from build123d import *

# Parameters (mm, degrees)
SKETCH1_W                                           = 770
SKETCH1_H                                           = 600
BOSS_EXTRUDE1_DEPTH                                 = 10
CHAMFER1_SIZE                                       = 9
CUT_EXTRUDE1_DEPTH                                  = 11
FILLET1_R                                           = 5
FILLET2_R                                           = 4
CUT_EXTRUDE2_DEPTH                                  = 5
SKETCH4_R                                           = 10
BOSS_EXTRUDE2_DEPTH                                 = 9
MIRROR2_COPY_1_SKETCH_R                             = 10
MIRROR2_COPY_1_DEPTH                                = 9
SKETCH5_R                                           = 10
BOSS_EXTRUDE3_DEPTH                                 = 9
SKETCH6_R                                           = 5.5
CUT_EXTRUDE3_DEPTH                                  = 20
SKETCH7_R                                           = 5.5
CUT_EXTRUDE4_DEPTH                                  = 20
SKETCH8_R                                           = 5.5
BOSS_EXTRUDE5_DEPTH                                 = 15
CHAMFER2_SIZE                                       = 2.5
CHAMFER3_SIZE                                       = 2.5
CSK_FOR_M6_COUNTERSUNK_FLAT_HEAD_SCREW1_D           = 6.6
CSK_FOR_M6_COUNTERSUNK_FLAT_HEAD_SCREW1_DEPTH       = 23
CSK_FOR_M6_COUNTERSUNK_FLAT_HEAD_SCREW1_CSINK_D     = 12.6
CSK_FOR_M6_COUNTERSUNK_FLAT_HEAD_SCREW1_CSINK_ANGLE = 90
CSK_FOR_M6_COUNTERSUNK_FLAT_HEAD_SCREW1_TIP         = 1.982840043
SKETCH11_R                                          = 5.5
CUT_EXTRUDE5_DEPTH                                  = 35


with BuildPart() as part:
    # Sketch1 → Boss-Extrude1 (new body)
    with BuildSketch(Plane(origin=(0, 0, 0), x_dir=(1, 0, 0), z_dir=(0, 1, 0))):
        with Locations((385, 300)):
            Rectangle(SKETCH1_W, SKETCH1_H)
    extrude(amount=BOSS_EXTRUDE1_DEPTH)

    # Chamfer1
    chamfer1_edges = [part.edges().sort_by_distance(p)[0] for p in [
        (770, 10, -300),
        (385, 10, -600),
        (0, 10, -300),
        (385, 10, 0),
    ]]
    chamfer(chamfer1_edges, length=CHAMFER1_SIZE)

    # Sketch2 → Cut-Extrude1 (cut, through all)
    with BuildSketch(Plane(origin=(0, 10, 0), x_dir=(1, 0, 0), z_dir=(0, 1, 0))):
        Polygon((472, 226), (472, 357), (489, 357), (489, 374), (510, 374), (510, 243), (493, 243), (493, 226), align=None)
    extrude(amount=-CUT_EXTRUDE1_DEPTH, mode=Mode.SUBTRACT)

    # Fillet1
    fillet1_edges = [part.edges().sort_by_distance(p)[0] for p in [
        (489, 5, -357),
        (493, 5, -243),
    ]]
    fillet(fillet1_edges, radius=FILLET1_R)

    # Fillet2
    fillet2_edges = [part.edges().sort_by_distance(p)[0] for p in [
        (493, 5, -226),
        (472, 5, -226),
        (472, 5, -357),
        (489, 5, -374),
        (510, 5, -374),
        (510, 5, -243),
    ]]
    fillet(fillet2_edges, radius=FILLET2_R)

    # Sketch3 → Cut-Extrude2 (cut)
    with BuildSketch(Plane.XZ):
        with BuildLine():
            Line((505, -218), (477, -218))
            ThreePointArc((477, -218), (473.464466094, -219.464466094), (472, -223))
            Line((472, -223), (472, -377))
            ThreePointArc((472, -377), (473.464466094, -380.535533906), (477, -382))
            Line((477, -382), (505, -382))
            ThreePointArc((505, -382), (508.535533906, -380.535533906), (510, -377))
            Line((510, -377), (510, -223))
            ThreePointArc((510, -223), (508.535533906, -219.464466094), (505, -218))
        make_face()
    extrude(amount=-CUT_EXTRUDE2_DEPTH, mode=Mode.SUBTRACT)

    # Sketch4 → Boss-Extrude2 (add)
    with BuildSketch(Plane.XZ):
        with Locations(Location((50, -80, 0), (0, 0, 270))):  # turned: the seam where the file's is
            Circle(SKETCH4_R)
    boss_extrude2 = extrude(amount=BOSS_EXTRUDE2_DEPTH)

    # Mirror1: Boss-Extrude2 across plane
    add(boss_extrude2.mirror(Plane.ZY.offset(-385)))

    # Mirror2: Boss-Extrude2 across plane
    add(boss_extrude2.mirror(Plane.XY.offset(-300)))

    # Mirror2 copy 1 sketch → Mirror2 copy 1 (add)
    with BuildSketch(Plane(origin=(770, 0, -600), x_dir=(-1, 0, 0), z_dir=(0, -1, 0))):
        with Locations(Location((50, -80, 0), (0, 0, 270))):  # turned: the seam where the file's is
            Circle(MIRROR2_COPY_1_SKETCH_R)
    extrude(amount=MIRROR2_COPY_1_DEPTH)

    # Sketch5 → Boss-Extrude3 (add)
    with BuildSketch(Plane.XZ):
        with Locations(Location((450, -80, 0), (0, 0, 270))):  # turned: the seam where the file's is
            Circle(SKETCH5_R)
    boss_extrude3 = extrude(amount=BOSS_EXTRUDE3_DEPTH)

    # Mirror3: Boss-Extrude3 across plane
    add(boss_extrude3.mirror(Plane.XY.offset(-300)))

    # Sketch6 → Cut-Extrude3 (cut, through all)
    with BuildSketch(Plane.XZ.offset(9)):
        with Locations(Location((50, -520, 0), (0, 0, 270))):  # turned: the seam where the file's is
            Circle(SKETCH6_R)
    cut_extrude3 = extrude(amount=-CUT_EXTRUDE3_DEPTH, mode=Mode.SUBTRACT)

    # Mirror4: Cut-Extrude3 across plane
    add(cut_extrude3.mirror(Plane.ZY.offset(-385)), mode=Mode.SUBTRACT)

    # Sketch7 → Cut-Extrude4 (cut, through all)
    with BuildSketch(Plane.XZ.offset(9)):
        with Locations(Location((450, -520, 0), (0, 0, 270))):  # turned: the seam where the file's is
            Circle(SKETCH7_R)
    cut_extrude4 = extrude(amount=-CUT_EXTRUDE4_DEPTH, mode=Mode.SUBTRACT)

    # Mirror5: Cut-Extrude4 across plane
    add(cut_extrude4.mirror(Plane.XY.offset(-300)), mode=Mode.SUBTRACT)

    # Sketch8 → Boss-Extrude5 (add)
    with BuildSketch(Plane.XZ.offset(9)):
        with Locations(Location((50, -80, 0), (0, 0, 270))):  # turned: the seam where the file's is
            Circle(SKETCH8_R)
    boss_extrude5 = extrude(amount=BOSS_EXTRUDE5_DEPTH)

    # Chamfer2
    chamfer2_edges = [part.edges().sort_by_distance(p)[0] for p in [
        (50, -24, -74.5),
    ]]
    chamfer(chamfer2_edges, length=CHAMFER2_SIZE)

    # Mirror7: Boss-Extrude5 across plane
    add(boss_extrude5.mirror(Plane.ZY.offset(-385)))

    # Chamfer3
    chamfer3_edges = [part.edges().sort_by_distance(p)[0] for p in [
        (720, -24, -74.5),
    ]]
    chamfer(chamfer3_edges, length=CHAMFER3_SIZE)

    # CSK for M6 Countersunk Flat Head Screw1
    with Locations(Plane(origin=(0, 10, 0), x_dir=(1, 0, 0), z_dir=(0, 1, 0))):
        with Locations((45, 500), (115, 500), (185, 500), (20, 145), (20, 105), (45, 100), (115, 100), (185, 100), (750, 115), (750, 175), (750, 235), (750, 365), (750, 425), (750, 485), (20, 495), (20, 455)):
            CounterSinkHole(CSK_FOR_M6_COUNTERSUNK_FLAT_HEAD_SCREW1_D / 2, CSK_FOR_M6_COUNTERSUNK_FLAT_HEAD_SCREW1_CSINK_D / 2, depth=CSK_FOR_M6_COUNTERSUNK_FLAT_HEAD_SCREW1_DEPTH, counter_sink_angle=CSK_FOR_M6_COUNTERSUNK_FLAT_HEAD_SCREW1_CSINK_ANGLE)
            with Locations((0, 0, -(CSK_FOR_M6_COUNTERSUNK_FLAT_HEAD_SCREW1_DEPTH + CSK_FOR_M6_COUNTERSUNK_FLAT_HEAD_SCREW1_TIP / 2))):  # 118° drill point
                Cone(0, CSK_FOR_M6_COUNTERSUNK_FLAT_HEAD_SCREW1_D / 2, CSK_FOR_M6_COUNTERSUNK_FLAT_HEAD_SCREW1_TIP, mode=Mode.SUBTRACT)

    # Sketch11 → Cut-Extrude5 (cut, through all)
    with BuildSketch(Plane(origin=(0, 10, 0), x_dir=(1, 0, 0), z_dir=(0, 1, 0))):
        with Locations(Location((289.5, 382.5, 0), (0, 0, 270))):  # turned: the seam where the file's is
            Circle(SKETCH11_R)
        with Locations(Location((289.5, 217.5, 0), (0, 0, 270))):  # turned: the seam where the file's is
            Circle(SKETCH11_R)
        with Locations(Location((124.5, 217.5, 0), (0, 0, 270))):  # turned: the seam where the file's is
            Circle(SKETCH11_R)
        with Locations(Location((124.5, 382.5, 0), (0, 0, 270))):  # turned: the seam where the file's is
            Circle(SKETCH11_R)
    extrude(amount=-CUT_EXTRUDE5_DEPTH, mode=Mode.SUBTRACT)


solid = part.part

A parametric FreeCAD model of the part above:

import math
import FreeCAD as App
import Part
import Sketcher

V = App.Vector
Q = App.Units.Quantity


def edges_at(feature, points):
    """Names of the edges that pass closest to the given points."""
    edges = feature.Shape.Edges
    near = lambda p: min(range(len(edges)), key=lambda i: edges[i].distToShape(Part.Vertex(*p))[0])
    return sorted({f"Edge{near(p) + 1}" for p in points})


def add_polygon(sketch, points):
    """Adds a closed chain of lines whose ends are joined by coincident constraints."""
    first, n = sketch.GeometryCount, len(points)
    for a, b in zip(points, points[1:] + points[:1]):
        sketch.addGeometry(Part.LineSegment(App.Vector(*a, 0), App.Vector(*b, 0)), False)
    for i in range(n):
        sketch.addConstraint(Sketcher.Constraint("Coincident", first + i, 2, first + (i + 1) % n, 1))

doc = App.newDocument("Part")
params = doc.addObject("Spreadsheet::Sheet", "Params")
for row, (alias, value) in enumerate([
    ("sketch1_width", "770 mm"),
    ("sketch1_height", "600 mm"),
    ("pad1_length", "10 mm"),
    ("chamfer_size", "9 mm"),
    ("sketch2_width", "21 mm"),
    ("sketch2_width2", "17 mm"),
    ("sketch2_height", "131 mm"),
    ("fillet_radius", "5 mm"),
    ("fillet2_radius", "4 mm"),
    ("sketch3_radius", "5 mm"),
    ("sketch3_width", "28 mm"),
    ("sketch3_height", "154 mm"),
    ("pocket2_length", "5 mm"),
    ("sketch4_diameter", "20 mm"),
    ("pad2_length", "9 mm"),
    ("sketch5_diameter", "20 mm"),
    ("pad3_length", "9 mm"),
    ("sketch6_diameter", "20 mm"),
    ("pad4_length", "9 mm"),
    ("sketch7_diameter", "11 mm"),
    ("sketch8_diameter", "11 mm"),
    ("sketch9_diameter", "11 mm"),
    ("pad5_length", "15 mm"),
    ("chamfer2_size", "2.5 mm"),
    ("chamfer3_size", "2.5 mm"),
    ("sketch10_diameter", "6.6 mm"),
    ("hole_diameter", "6.6 mm"),
    ("hole_depth", "23 mm"),
    ("hole_csink_diameter", "12.6 mm"),
    ("sketch11_diameter", "11 mm"),
], start=1):
    params.set(f"A{row}", alias)
    params.set(f"B{row}", "=" + value)
    params.setAlias(f"B{row}", alias)

body = doc.addObject("PartDesign::Body", "Body")

sketch1 = body.newObject("Sketcher::SketchObject", "Sketch")
sketch1.AttachmentSupport = (doc.getObject("XZ_Plane"), [""])
sketch1.MapMode = "FlatFace"
add_polygon(sketch1, [(0, -600), (0, 0), (770, 0), (770, -600)])
sketch1.addConstraint([
    Sketcher.Constraint("Vertical", 0),
    Sketcher.Constraint("Horizontal", 1),
    Sketcher.Constraint("Vertical", 2),
    Sketcher.Constraint("Horizontal", 3),
    Sketcher.Constraint("Coincident", 0, 2, -1, 1),
    Sketcher.Constraint("DistanceX", 1, 1, 1, 2, Q("770 mm")),
    Sketcher.Constraint("DistanceY", 0, 1, 0, 2, Q("600 mm")),
])
sketch1.setExpression("Constraints[9]", "Params.sketch1_width")
sketch1.setExpression("Constraints[10]", "Params.sketch1_height")
pad1 = body.newObject("PartDesign::Pad", "Pad")
pad1.Profile = sketch1
pad1.setExpression("Length", "Params.pad1_length")
pad1.Reversed = True
doc.recompute()

chamfer = body.newObject("PartDesign::Chamfer", "Chamfer")
chamfer.Base = (pad1, edges_at(pad1, [
    (770, 10, -300),
    (385, 10, -600),
    (0, 10, -300),
    (385, 10, 0),
]))
chamfer.setExpression("Size", "Params.chamfer_size")

sketch2 = body.newObject("Sketcher::SketchObject", "Sketch001")
sketch2.AttachmentSupport = (doc.getObject("XZ_Plane"), [""])
sketch2.MapMode = "FlatFace"
sketch2.AttachmentOffset = App.Placement(V(0, 0, -10), App.Rotation())
add_polygon(sketch2, [(472, -357), (472, -226), (493, -226), (493, -243), (510, -243), (510, -374), (489, -374), (489, -357)])
sketch2.addConstraint([
    Sketcher.Constraint("Vertical", 0),
    Sketcher.Constraint("Horizontal", 1),
    Sketcher.Constraint("Vertical", 2),
    Sketcher.Constraint("Horizontal", 3),
    Sketcher.Constraint("Vertical", 4),
    Sketcher.Constraint("Horizontal", 5),
    Sketcher.Constraint("Vertical", 6),
    Sketcher.Constraint("Horizontal", 7),
    Sketcher.Constraint("Equal", 1, 5),
    Sketcher.Constraint("Equal", 7, 2),
    Sketcher.Constraint("Equal", 0, 4),
    Sketcher.Constraint("DistanceX", 1, 1, 1, 2, Q("21 mm")),
    Sketcher.Constraint("DistanceX", 3, 1, 3, 2, Q("17 mm")),
    Sketcher.Constraint("DistanceY", 0, 1, 0, 2, Q("131 mm")),
    Sketcher.Constraint("DistanceX", -1, 1, 0, 2, Q("472 mm")),
    Sketcher.Constraint("DistanceY", 0, 2, -1, 1, Q("226 mm")),
])
sketch2.setExpression("Constraints[19]", "Params.sketch2_width")
sketch2.setExpression("Constraints[20]", "Params.sketch2_width2")
sketch2.setExpression("Constraints[21]", "Params.sketch2_height")
pocket1 = body.newObject("PartDesign::Pocket", "Pocket")
pocket1.Profile = sketch2
pocket1.Type = "ThroughAll"
pocket1.Reversed = True
doc.recompute()

fillet = body.newObject("PartDesign::Fillet", "Fillet")
fillet.Base = (pocket1, edges_at(pocket1, [(489, 5, -357), (493, 5, -243)]))
fillet.setExpression("Radius", "Params.fillet_radius")
doc.recompute()

fillet2 = body.newObject("PartDesign::Fillet", "Fillet001")
fillet2.Base = (fillet, edges_at(fillet, [
    (493, 5, -226),
    (472, 5, -226),
    (472, 5, -357),
    (489, 5, -374),
    (510, 5, -374),
    (510, 5, -243),
]))
fillet2.setExpression("Radius", "Params.fillet2_radius")

sketch3 = body.newObject("Sketcher::SketchObject", "Sketch002")
sketch3.AttachmentSupport = (doc.getObject("XZ_Plane"), [""])
sketch3.MapMode = "FlatFace"
sketch3.addGeometry([
    Part.LineSegment(V(505, -218, 0), V(477, -218, 0)),
    Part.ArcOfCircle(Part.Circle(V(477, -223, 0), V(0, 0, 1), 5), math.radians(90), math.radians(180)),
    Part.LineSegment(V(472, -223, 0), V(472, -377, 0)),
    Part.ArcOfCircle(Part.Circle(V(477, -377, 0), V(0, 0, 1), 5), math.radians(180), math.radians(270)),
    Part.LineSegment(V(477, -382, 0), V(505, -382, 0)),
    Part.ArcOfCircle(Part.Circle(V(505, -377, 0), V(0, 0, 1), 5), math.radians(-90), math.radians(0)),
    Part.LineSegment(V(510, -377, 0), V(510, -223, 0)),
    Part.ArcOfCircle(Part.Circle(V(505, -223, 0), V(0, 0, 1), 5), math.radians(0), math.radians(90)),
], False)
sketch3.addConstraint([
    Sketcher.Constraint("Tangent", 0, 2, 1, 1),
    Sketcher.Constraint("Tangent", 1, 2, 2, 1),
    Sketcher.Constraint("Tangent", 2, 2, 3, 1),
    Sketcher.Constraint("Tangent", 3, 2, 4, 1),
    Sketcher.Constraint("Tangent", 4, 2, 5, 1),
    Sketcher.Constraint("Tangent", 5, 2, 6, 1),
    Sketcher.Constraint("Tangent", 6, 2, 7, 1),
    Sketcher.Constraint("Tangent", 7, 2, 0, 1),
    Sketcher.Constraint("Horizontal", 0),
    Sketcher.Constraint("Vertical", 2),
    Sketcher.Constraint("Horizontal", 4),
    Sketcher.Constraint("Vertical", 6),
    Sketcher.Constraint("Equal", 1, 3),
    Sketcher.Constraint("Equal", 3, 5),
    Sketcher.Constraint("Equal", 5, 7),
    Sketcher.Constraint("Radius", 1, Q("5 mm")),
    Sketcher.Constraint("DistanceX", 0, 2, 0, 1, Q("28 mm")),
    Sketcher.Constraint("DistanceY", 2, 2, 2, 1, Q("154 mm")),
    Sketcher.Constraint("DistanceX", -1, 1, 1, 3, Q("477 mm")),
    Sketcher.Constraint("DistanceY", 1, 3, -1, 1, Q("223 mm")),
])
sketch3.setExpression("Constraints[15]", "Params.sketch3_radius")
sketch3.setExpression("Constraints[16]", "Params.sketch3_width")
sketch3.setExpression("Constraints[17]", "Params.sketch3_height")
pocket2 = body.newObject("PartDesign::Pocket", "Pocket001")
pocket2.Profile = sketch3
pocket2.setExpression("Length", "Params.pocket2_length")

sketch4 = body.newObject("Sketcher::SketchObject", "Sketch003")
sketch4.AttachmentSupport = (doc.getObject("XZ_Plane"), [""])
sketch4.MapMode = "FlatFace"
sketch4.addGeometry(Part.Circle(V(50, -80, 0), V(0, 0, 1), 10), False)
sketch4.addConstraint([
    Sketcher.Constraint("Diameter", 0, Q("20 mm")),
    Sketcher.Constraint("DistanceX", -1, 1, 0, 3, Q("50 mm")),
    Sketcher.Constraint("DistanceY", 0, 3, -1, 1, Q("80 mm")),
])
sketch4.setExpression("Constraints[0]", "Params.sketch4_diameter")
pad2 = body.newObject("PartDesign::Pad", "Pad001")
pad2.Profile = sketch4
pad2.setExpression("Length", "Params.pad2_length")
doc.recompute()

datumplane = body.newObject("PartDesign::Plane", "DatumPlane")
datumplane.AttachmentSupport = (doc.getObject("YZ_Plane"), [""])
datumplane.MapMode = "FlatFace"
datumplane.AttachmentOffset = App.Placement(V(0, 0, 385), App.Rotation())
mirrored = body.newObject("PartDesign::Mirrored", "Mirrored")
mirrored.Originals = [pad2]
mirrored.MirrorPlane = (datumplane, [""])
body.Tip = mirrored
doc.recompute()

datumplane2 = body.newObject("PartDesign::Plane", "DatumPlane001")
datumplane2.AttachmentSupport = (doc.getObject("XY_Plane"), [""])
datumplane2.MapMode = "FlatFace"
datumplane2.AttachmentOffset = App.Placement(V(0, 0, -300), App.Rotation())
mirrored2 = body.newObject("PartDesign::Mirrored", "Mirrored001")
mirrored2.Originals = [pad2]
mirrored2.MirrorPlane = (datumplane2, [""])
body.Tip = mirrored2

sketch5 = body.newObject("Sketcher::SketchObject", "Sketch004")
sketch5.AttachmentSupport = (doc.getObject("XZ_Plane"), [""])
sketch5.MapMode = "FlatFace"
sketch5.addGeometry(Part.Circle(V(720, -520, 0), V(0, 0, 1), 10), False)
sketch5.addConstraint([
    Sketcher.Constraint("Diameter", 0, Q("20 mm")),
    Sketcher.Constraint("DistanceX", -1, 1, 0, 3, Q("720 mm")),
    Sketcher.Constraint("DistanceY", 0, 3, -1, 1, Q("520 mm")),
])
sketch5.setExpression("Constraints[0]", "Params.sketch5_diameter")
pad3 = body.newObject("PartDesign::Pad", "Pad002")
pad3.Profile = sketch5
pad3.setExpression("Length", "Params.pad3_length")

sketch6 = body.newObject("Sketcher::SketchObject", "Sketch005")
sketch6.AttachmentSupport = (doc.getObject("XZ_Plane"), [""])
sketch6.MapMode = "FlatFace"
sketch6.addGeometry(Part.Circle(V(450, -80, 0), V(0, 0, 1), 10), False)
sketch6.addConstraint([
    Sketcher.Constraint("Diameter", 0, Q("20 mm")),
    Sketcher.Constraint("DistanceX", -1, 1, 0, 3, Q("450 mm")),
    Sketcher.Constraint("DistanceY", 0, 3, -1, 1, Q("80 mm")),
])
sketch6.setExpression("Constraints[0]", "Params.sketch6_diameter")
pad4 = body.newObject("PartDesign::Pad", "Pad003")
pad4.Profile = sketch6
pad4.setExpression("Length", "Params.pad4_length")
doc.recompute()

datumplane3 = body.newObject("PartDesign::Plane", "DatumPlane002")
datumplane3.AttachmentSupport = (doc.getObject("XY_Plane"), [""])
datumplane3.MapMode = "FlatFace"
datumplane3.AttachmentOffset = App.Placement(V(0, 0, -300), App.Rotation())
mirrored3 = body.newObject("PartDesign::Mirrored", "Mirrored002")
mirrored3.Originals = [pad4]
mirrored3.MirrorPlane = (datumplane3, [""])
body.Tip = mirrored3

sketch7 = body.newObject("Sketcher::SketchObject", "Sketch006")
sketch7.AttachmentSupport = (doc.getObject("XZ_Plane"), [""])
sketch7.MapMode = "FlatFace"
sketch7.AttachmentOffset = App.Placement(V(0, 0, 9), App.Rotation())
sketch7.addGeometry(Part.Circle(V(50, -520, 0), V(0, 0, 1), 6), False)
sketch7.addConstraint([
    Sketcher.Constraint("Diameter", 0, Q("11 mm")),
    Sketcher.Constraint("DistanceX", -1, 1, 0, 3, Q("50 mm")),
    Sketcher.Constraint("DistanceY", 0, 3, -1, 1, Q("520 mm")),
])
sketch7.setExpression("Constraints[0]", "Params.sketch7_diameter")
pocket3 = body.newObject("PartDesign::Pocket", "Pocket002")
pocket3.Profile = sketch7
pocket3.Type = "ThroughAll"
doc.recompute()

datumplane4 = body.newObject("PartDesign::Plane", "DatumPlane003")
datumplane4.AttachmentSupport = (doc.getObject("YZ_Plane"), [""])
datumplane4.MapMode = "FlatFace"
datumplane4.AttachmentOffset = App.Placement(V(0, 0, 385), App.Rotation())
mirrored4 = body.newObject("PartDesign::Mirrored", "Mirrored003")
mirrored4.Originals = [pocket3]
mirrored4.MirrorPlane = (datumplane4, [""])
body.Tip = mirrored4

sketch8 = body.newObject("Sketcher::SketchObject", "Sketch007")
sketch8.AttachmentSupport = (doc.getObject("XZ_Plane"), [""])
sketch8.MapMode = "FlatFace"
sketch8.AttachmentOffset = App.Placement(V(0, 0, 9), App.Rotation())
sketch8.addGeometry(Part.Circle(V(450, -520, 0), V(0, 0, 1), 6), False)
sketch8.addConstraint([
    Sketcher.Constraint("Diameter", 0, Q("11 mm")),
    Sketcher.Constraint("DistanceX", -1, 1, 0, 3, Q("450 mm")),
    Sketcher.Constraint("DistanceY", 0, 3, -1, 1, Q("520 mm")),
])
sketch8.setExpression("Constraints[0]", "Params.sketch8_diameter")
pocket4 = body.newObject("PartDesign::Pocket", "Pocket003")
pocket4.Profile = sketch8
pocket4.Type = "ThroughAll"
doc.recompute()

datumplane5 = body.newObject("PartDesign::Plane", "DatumPlane004")
datumplane5.AttachmentSupport = (doc.getObject("XY_Plane"), [""])
datumplane5.MapMode = "FlatFace"
datumplane5.AttachmentOffset = App.Placement(V(0, 0, -300), App.Rotation())
mirrored5 = body.newObject("PartDesign::Mirrored", "Mirrored004")
mirrored5.Originals = [pocket4]
mirrored5.MirrorPlane = (datumplane5, [""])
body.Tip = mirrored5

sketch9 = body.newObject("Sketcher::SketchObject", "Sketch008")
sketch9.AttachmentSupport = (doc.getObject("XZ_Plane"), [""])
sketch9.MapMode = "FlatFace"
sketch9.AttachmentOffset = App.Placement(V(0, 0, 9), App.Rotation())
sketch9.addGeometry(Part.Circle(V(50, -80, 0), V(0, 0, 1), 6), False)
sketch9.addConstraint([
    Sketcher.Constraint("Diameter", 0, Q("11 mm")),
    Sketcher.Constraint("DistanceX", -1, 1, 0, 3, Q("50 mm")),
    Sketcher.Constraint("DistanceY", 0, 3, -1, 1, Q("80 mm")),
])
sketch9.setExpression("Constraints[0]", "Params.sketch9_diameter")
pad5 = body.newObject("PartDesign::Pad", "Pad004")
pad5.Profile = sketch9
pad5.setExpression("Length", "Params.pad5_length")
doc.recompute()

chamfer2 = body.newObject("PartDesign::Chamfer", "Chamfer001")
chamfer2.Base = (pad5, edges_at(pad5, [(50, -24, -74.5)]))
chamfer2.setExpression("Size", "Params.chamfer2_size")
doc.recompute()

datumplane6 = body.newObject("PartDesign::Plane", "DatumPlane005")
datumplane6.AttachmentSupport = (doc.getObject("YZ_Plane"), [""])
datumplane6.MapMode = "FlatFace"
datumplane6.AttachmentOffset = App.Placement(V(0, 0, 385), App.Rotation())
mirrored6 = body.newObject("PartDesign::Mirrored", "Mirrored005")
mirrored6.Originals = [pad5]
mirrored6.MirrorPlane = (datumplane6, [""])
body.Tip = mirrored6
doc.recompute()

chamfer3 = body.newObject("PartDesign::Chamfer", "Chamfer002")
chamfer3.Base = (mirrored6, edges_at(mirrored6, [(720, -24, -74.5)]))
chamfer3.setExpression("Size", "Params.chamfer3_size")

sketch10 = body.newObject("Sketcher::SketchObject", "Sketch009")
sketch10.AttachmentSupport = (doc.getObject("XZ_Plane"), [""])
sketch10.MapMode = "FlatFace"
sketch10.AttachmentOffset = App.Placement(V(0, 0, -10), App.Rotation())
sketch10.addGeometry([
    Part.Circle(V(45, -500, 0), V(0, 0, 1), 3.3),
    Part.Circle(V(115, -500, 0), V(0, 0, 1), 3.3),
    Part.Circle(V(185, -500, 0), V(0, 0, 1), 3.3),
    Part.Circle(V(20, -145, 0), V(0, 0, 1), 3.3),
    Part.Circle(V(20, -105, 0), V(0, 0, 1), 3.3),
    Part.Circle(V(45, -100, 0), V(0, 0, 1), 3.3),
    Part.Circle(V(115, -100, 0), V(0, 0, 1), 3.3),
    Part.Circle(V(185, -100, 0), V(0, 0, 1), 3.3),
    Part.Circle(V(750, -115, 0), V(0, 0, 1), 3.3),
    Part.Circle(V(750, -175, 0), V(0, 0, 1), 3.3),
    Part.Circle(V(750, -235, 0), V(0, 0, 1), 3.3),
    Part.Circle(V(750, -365, 0), V(0, 0, 1), 3.3),
    Part.Circle(V(750, -425, 0), V(0, 0, 1), 3.3),
    Part.Circle(V(750, -485, 0), V(0, 0, 1), 3.3),
    Part.Circle(V(20, -495, 0), V(0, 0, 1), 3.3),
    Part.Circle(V(20, -455, 0), V(0, 0, 1), 3.3),
], False)
sketch10.addConstraint([
    Sketcher.Constraint("Equal", 0, 1),
    Sketcher.Constraint("Equal", 1, 2),
    Sketcher.Constraint("Equal", 2, 3),
    Sketcher.Constraint("Equal", 3, 4),
    Sketcher.Constraint("Equal", 4, 5),
    Sketcher.Constraint("Equal", 5, 6),
    Sketcher.Constraint("Equal", 6, 7),
    Sketcher.Constraint("Equal", 7, 8),
    Sketcher.Constraint("Equal", 8, 9),
    Sketcher.Constraint("Equal", 9, 10),
    Sketcher.Constraint("Equal", 10, 11),
    Sketcher.Constraint("Equal", 11, 12),
    Sketcher.Constraint("Equal", 12, 13),
    Sketcher.Constraint("Equal", 13, 14),
    Sketcher.Constraint("Equal", 14, 15),
    Sketcher.Constraint("Horizontal", 0, 3, 1, 3),
    Sketcher.Constraint("Horizontal", 1, 3, 2, 3),
    Sketcher.Constraint("Horizontal", 5, 3, 6, 3),
    Sketcher.Constraint("Horizontal", 6, 3, 7, 3),
    Sketcher.Constraint("Vertical", 3, 3, 4, 3),
    Sketcher.Constraint("Vertical", 0, 3, 5, 3),
    Sketcher.Constraint("Vertical", 1, 3, 6, 3),
    Sketcher.Constraint("Vertical", 2, 3, 7, 3),
    Sketcher.Constraint("Vertical", 8, 3, 9, 3),
    Sketcher.Constraint("Vertical", 9, 3, 10, 3),
    Sketcher.Constraint("Vertical", 10, 3, 11, 3),
    Sketcher.Constraint("Vertical", 11, 3, 12, 3),
    Sketcher.Constraint("Vertical", 12, 3, 13, 3),
    Sketcher.Constraint("Vertical", 4, 3, 14, 3),
    Sketcher.Constraint("Vertical", 14, 3, 15, 3),
    Sketcher.Constraint("Diameter", 0, Q("6.6 mm")),
    Sketcher.Constraint("DistanceX", -1, 1, 0, 3, Q("45 mm")),
    Sketcher.Constraint("DistanceY", 0, 3, -1, 1, Q("500 mm")),
    Sketcher.Constraint("DistanceX", -1, 1, 1, 3, Q("115 mm")),
    Sketcher.Constraint("DistanceX", -1, 1, 2, 3, Q("185 mm")),
    Sketcher.Constraint("DistanceX", -1, 1, 3, 3, Q("20 mm")),
    Sketcher.Constraint("DistanceY", 3, 3, -1, 1, Q("145 mm")),
    Sketcher.Constraint("DistanceY", 4, 3, -1, 1, Q("105 mm")),
    Sketcher.Constraint("DistanceY", 5, 3, -1, 1, Q("100 mm")),
    Sketcher.Constraint("DistanceX", -1, 1, 8, 3, Q("750 mm")),
    Sketcher.Constraint("DistanceY", 8, 3, -1, 1, Q("115 mm")),
    Sketcher.Constraint("DistanceY", 9, 3, -1, 1, Q("175 mm")),
    Sketcher.Constraint("DistanceY", 10, 3, -1, 1, Q("235 mm")),
    Sketcher.Constraint("DistanceY", 11, 3, -1, 1, Q("365 mm")),
    Sketcher.Constraint("DistanceY", 12, 3, -1, 1, Q("425 mm")),
    Sketcher.Constraint("DistanceY", 13, 3, -1, 1, Q("485 mm")),
    Sketcher.Constraint("DistanceY", 14, 3, -1, 1, Q("495 mm")),
    Sketcher.Constraint("DistanceY", 15, 3, -1, 1, Q("455 mm")),
])
sketch10.setExpression("Constraints[30]", "Params.sketch10_diameter")
doc.recompute()
hole = body.newObject("PartDesign::Hole", "Hole")
hole.Profile = sketch10
hole.ThreadType = "None"
hole.setExpression("Diameter", "Params.hole_diameter")
hole.DepthType = "Dimension"
hole.setExpression("Depth", "Params.hole_depth")
hole.DrillPoint = "Angled"
hole.DrillPointAngle = 118
hole.HoleCutType = "Countersink"
hole.setExpression("HoleCutDiameter", "Params.hole_csink_diameter")
hole.HoleCutCountersinkAngle = 90
hole.Reversed = True

sketch11 = body.newObject("Sketcher::SketchObject", "Sketch010")
sketch11.AttachmentSupport = (doc.getObject("XZ_Plane"), [""])
sketch11.MapMode = "FlatFace"
sketch11.AttachmentOffset = App.Placement(V(0, 0, -10), App.Rotation())
sketch11.addGeometry([
    Part.Circle(V(290, -382, 0), V(0, 0, 1), 6),
    Part.Circle(V(290, -218, 0), V(0, 0, 1), 6),
    Part.Circle(V(124, -218, 0), V(0, 0, 1), 6),
    Part.Circle(V(124, -382, 0), V(0, 0, 1), 6),
], False)
sketch11.addConstraint([
    Sketcher.Constraint("Equal", 0, 1),
    Sketcher.Constraint("Equal", 1, 2),
    Sketcher.Constraint("Equal", 2, 3),
    Sketcher.Constraint("Horizontal", 1, 3, 2, 3),
    Sketcher.Constraint("Horizontal", 0, 3, 3, 3),
    Sketcher.Constraint("Vertical", 0, 3, 1, 3),
    Sketcher.Constraint("Vertical", 2, 3, 3, 3),
    Sketcher.Constraint("Diameter", 0, Q("11 mm")),
    Sketcher.Constraint("DistanceY", 0, 3, 1, 3, Q("165 mm")),
    Sketcher.Constraint("DistanceX", 2, 3, 1, 3, Q("165 mm")),
    Sketcher.Constraint("DistanceX", -1, 1, 0, 3, Q("289.5 mm")),
    Sketcher.Constraint("DistanceY", 0, 3, -1, 1, Q("382.5 mm")),
])
sketch11.setExpression("Constraints[7]", "Params.sketch11_diameter")
pocket5 = body.newObject("PartDesign::Pocket", "Pocket004")
pocket5.Profile = sketch11
pocket5.Type = "ThroughAll"
pocket5.Reversed = True

doc.recompute()
